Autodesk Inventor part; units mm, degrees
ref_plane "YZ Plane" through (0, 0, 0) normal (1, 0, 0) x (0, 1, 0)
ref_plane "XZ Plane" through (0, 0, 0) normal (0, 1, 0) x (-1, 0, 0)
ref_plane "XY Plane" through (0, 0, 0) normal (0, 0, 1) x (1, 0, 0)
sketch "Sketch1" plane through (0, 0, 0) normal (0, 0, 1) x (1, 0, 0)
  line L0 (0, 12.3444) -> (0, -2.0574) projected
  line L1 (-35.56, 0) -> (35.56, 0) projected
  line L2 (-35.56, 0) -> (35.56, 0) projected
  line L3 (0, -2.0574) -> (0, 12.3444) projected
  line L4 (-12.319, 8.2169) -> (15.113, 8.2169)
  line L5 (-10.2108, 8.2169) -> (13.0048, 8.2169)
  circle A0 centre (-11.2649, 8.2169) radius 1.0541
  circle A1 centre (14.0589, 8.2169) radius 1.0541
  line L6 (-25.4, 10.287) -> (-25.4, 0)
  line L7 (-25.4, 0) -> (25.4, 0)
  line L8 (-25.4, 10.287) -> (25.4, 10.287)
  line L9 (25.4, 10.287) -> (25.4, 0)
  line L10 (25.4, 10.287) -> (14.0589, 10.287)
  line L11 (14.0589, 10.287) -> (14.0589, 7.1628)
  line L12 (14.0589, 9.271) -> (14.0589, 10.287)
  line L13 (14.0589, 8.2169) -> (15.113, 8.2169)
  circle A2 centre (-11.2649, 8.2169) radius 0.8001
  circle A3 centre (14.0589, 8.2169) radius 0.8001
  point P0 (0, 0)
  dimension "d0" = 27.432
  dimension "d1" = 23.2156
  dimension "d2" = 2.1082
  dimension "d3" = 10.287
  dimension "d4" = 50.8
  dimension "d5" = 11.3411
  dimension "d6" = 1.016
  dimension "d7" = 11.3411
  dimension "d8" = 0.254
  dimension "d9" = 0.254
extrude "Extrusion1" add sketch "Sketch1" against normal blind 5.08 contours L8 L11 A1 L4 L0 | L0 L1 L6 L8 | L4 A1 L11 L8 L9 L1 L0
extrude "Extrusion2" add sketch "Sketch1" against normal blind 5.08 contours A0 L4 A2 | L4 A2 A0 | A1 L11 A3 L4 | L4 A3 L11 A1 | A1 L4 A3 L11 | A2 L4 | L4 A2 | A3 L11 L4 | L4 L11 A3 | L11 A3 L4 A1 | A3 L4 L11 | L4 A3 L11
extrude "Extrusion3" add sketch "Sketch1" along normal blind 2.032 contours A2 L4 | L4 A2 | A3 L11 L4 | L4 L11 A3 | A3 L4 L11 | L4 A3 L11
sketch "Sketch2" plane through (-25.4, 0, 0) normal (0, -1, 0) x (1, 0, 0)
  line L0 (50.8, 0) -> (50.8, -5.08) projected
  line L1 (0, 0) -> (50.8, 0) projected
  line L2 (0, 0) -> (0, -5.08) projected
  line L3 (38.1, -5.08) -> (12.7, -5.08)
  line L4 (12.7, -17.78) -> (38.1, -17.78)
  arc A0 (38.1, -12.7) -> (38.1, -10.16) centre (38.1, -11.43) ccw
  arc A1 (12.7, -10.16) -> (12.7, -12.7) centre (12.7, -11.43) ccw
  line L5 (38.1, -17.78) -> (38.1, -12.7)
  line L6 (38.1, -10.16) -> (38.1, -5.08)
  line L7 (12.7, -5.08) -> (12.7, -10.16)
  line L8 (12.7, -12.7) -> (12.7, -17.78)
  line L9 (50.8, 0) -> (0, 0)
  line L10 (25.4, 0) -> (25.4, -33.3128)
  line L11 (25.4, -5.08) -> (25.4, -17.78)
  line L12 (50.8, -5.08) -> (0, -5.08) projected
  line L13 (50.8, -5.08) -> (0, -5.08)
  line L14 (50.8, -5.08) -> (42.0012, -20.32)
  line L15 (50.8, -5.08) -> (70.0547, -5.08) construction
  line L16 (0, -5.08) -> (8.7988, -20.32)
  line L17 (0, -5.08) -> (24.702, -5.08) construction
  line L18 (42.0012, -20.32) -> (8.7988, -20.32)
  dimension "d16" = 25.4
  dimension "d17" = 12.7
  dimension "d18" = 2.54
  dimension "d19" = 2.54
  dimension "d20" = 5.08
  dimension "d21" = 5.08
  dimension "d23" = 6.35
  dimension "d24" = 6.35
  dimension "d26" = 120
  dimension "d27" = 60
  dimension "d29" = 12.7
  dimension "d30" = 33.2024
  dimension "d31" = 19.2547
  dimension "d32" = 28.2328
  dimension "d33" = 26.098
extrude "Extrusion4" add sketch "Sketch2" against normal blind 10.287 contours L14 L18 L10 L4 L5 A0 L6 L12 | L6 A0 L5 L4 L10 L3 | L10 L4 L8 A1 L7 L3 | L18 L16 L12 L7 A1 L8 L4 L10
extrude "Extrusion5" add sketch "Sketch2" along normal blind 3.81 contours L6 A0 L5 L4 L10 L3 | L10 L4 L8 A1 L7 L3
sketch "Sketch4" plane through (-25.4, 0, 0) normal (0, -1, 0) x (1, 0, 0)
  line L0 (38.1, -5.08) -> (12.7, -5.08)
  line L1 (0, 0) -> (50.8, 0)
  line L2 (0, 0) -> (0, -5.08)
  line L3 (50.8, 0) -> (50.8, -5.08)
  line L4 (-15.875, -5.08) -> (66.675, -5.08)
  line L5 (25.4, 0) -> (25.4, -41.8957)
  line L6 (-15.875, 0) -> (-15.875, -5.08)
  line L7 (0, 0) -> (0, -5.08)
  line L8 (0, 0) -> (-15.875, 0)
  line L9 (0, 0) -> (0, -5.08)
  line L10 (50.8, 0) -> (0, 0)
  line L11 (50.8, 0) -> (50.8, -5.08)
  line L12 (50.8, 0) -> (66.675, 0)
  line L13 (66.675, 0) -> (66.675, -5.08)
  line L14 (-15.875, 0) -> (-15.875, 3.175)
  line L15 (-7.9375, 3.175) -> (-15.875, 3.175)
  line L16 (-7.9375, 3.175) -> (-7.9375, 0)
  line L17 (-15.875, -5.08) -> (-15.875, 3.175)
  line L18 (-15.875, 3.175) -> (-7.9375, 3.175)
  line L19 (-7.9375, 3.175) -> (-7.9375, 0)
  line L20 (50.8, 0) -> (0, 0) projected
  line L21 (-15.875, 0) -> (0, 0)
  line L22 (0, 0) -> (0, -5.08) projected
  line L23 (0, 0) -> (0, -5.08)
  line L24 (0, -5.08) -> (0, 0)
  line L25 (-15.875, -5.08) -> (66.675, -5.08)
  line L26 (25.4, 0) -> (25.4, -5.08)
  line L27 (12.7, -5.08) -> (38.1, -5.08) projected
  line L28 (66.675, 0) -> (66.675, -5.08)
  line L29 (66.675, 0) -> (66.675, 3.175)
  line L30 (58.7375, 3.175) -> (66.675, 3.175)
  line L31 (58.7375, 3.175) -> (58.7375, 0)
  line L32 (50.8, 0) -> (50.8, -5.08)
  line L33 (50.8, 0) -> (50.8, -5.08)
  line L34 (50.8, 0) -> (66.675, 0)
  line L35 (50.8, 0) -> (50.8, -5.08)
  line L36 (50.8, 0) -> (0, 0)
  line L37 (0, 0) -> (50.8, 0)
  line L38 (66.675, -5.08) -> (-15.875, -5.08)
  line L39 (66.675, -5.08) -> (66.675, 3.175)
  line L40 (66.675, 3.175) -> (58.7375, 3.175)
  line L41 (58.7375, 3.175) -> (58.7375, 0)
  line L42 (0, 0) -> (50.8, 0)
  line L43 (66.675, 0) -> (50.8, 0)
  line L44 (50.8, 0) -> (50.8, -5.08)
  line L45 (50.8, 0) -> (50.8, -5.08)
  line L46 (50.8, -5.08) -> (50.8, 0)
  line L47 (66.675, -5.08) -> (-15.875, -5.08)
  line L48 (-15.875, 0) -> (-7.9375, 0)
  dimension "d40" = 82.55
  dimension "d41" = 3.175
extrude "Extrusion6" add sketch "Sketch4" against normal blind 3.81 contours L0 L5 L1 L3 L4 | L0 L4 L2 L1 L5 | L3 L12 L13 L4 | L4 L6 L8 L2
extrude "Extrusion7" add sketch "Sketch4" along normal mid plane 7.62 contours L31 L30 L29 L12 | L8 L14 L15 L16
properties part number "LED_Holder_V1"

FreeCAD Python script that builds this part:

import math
import FreeCAD as App
import Part
import Sketcher
Q = App.Units.Quantity

doc = App.newDocument("Part")
body = doc.addObject("PartDesign::Body", "Body")

sketch1 = doc.addObject("Sketcher::SketchObject", "Sketch")
body.addObject(sketch1)
sketch1.AttachmentSupport = (doc.XY_Plane, [""])
sketch1.MapMode = "FlatFace"
sketch1.addGeometry([
    Part.LineSegment(App.Vector(-25.4, 10.3, 0), App.Vector(-25.4, 0, 0)),
    Part.LineSegment(App.Vector(-25.4, 0, 0), App.Vector(25.4, 0, 0)),
    Part.LineSegment(App.Vector(25.4, 0, 0), App.Vector(25.4, 10.3, 0)),
    Part.LineSegment(App.Vector(25.4, 10.3, 0), App.Vector(-25.4, 10.3, 0)),
    Part.Circle(App.Vector(14.1, 8.2, 0), App.Vector(0, 0, 1), 1.1),
    Part.Circle(App.Vector(-11.3, 8.2, 0), App.Vector(0, 0, 1), 1.1),
], False)
sketch1.addConstraint([
    Sketcher.Constraint("Coincident", 0, 2, 1, 1),
    Sketcher.Constraint("Coincident", 1, 2, 2, 1),
    Sketcher.Constraint("Coincident", 2, 2, 3, 1),
    Sketcher.Constraint("Coincident", 3, 2, 0, 1),
    Sketcher.Constraint("Vertical", 0),
    Sketcher.Constraint("Horizontal", 1),
    Sketcher.Constraint("Vertical", 2),
    Sketcher.Constraint("Horizontal", 3),
    Sketcher.Constraint("Equal", 4, 5),
    Sketcher.Constraint("Symmetric", 0, 2, 1, 2, -1, 1),
    Sketcher.Constraint("Horizontal", 4, 3, 5, 3),
    Sketcher.Constraint("DistanceX", 1, 1, 1, 2, Q("2 in")),
    Sketcher.Constraint("Diameter", 4, Q("0.083 in")),
    Sketcher.Constraint("DistanceY", 0, 2, 0, 1, Q("0.405 in")),
    Sketcher.Constraint("DistanceX", 4, 3, 1, 2, Q("0.4465 in")),
    Sketcher.Constraint("DistanceX", 5, 3, 4, 3, Q("0.997 in")),
    Sketcher.Constraint("DistanceY", -1, 1, 4, 3, Q("0.3235 in")),
])
pad1 = doc.addObject("PartDesign::Pad", "Pad")
body.addObject(pad1)
pad1.Profile = sketch1
pad1.Length = Q("0.2 in")
pad1.Reversed = True

sketch2 = doc.addObject("Sketcher::SketchObject", "Sketch001")
body.addObject(sketch2)
sketch2.AttachmentSupport = (doc.XY_Plane, [""])
sketch2.MapMode = "FlatFace"
sketch2.addGeometry([
    Part.Circle(App.Vector(-11.3, 8.2, 0), App.Vector(0, 0, 1), 1.1),
    Part.Circle(App.Vector(14.1, 8.2, 0), App.Vector(0, 0, 1), 1.1),
], False)
sketch2.addConstraint([
    Sketcher.Constraint("Equal", 0, 1),
    Sketcher.Constraint("Horizontal", 0, 3, 1, 3),
    Sketcher.Constraint("Diameter", 0, Q("0.083 in")),
    Sketcher.Constraint("DistanceX", 0, 3, 1, 3, Q("0.997 in")),
    Sketcher.Constraint("DistanceX", 0, 3, -1, 1, Q("0.4435 in")),
    Sketcher.Constraint("DistanceY", -1, 1, 0, 3, Q("0.3235 in")),
])
pad2 = doc.addObject("PartDesign::Pad", "Pad001")
body.addObject(pad2)
pad2.Profile = sketch2
pad2.Length = Q("0.2 in")
pad2.Reversed = True

sketch3 = doc.addObject("Sketcher::SketchObject", "Sketch002")
body.addObject(sketch3)
sketch3.AttachmentSupport = (doc.XY_Plane, [""])
sketch3.MapMode = "FlatFace"
sketch3.addGeometry([
    Part.Circle(App.Vector(-11.3, 8.2, 0), App.Vector(0, 0, 1), 0.8),
    Part.Circle(App.Vector(14.1, 8.2, 0), App.Vector(0, 0, 1), 0.8),
], False)
sketch3.addConstraint([
    Sketcher.Constraint("Equal", 0, 1),
    Sketcher.Constraint("Horizontal", 0, 3, 1, 3),
    Sketcher.Constraint("Diameter", 0, Q("0.063 in")),
    Sketcher.Constraint("DistanceX", 0, 3, 1, 3, Q("0.997 in")),
    Sketcher.Constraint("DistanceX", 0, 3, -1, 1, Q("0.4435 in")),
    Sketcher.Constraint("DistanceY", -1, 1, 0, 3, Q("0.3235 in")),
])
pad3 = doc.addObject("PartDesign::Pad", "Pad002")
body.addObject(pad3)
pad3.Profile = sketch3
pad3.Length = Q("0.08 in")

sketch4 = doc.addObject("Sketcher::SketchObject", "Sketch003")
body.addObject(sketch4)
sketch4.AttachmentSupport = (doc.XZ_Plane, [""])
sketch4.MapMode = "FlatFace"
sketch4.addGeometry([
    Part.LineSegment(App.Vector(17, -20, 0), App.Vector(25, -5, 0)),
    Part.LineSegment(App.Vector(25, -5, 0), App.Vector(-25, -5, 0)),
    Part.LineSegment(App.Vector(-25, -5, 0), App.Vector(-17, -20, 0)),
    Part.LineSegment(App.Vector(-17, -20, 0), App.Vector(17, -20, 0)),
], False)
sketch4.addConstraint([
    Sketcher.Constraint("Coincident", 0, 2, 1, 1),
    Sketcher.Constraint("Coincident", 1, 2, 2, 1),
    Sketcher.Constraint("Coincident", 2, 2, 3, 1),
    Sketcher.Constraint("Coincident", 3, 2, 0, 1),
    Sketcher.Constraint("Horizontal", 1),
    Sketcher.Constraint("Horizontal", 3),
    Sketcher.Constraint("Equal", 0, 2),
    Sketcher.Constraint("DistanceX", -1, 1, 0, 2, Q("1 in")),
    Sketcher.Constraint("DistanceX", 1, 2, -1, 1, Q("1 in")),
    Sketcher.Constraint("Angle", 0, Q("60 deg")),
    Sketcher.Constraint("DistanceY", 0, 2, -1, 1, Q("0.2 in")),
    Sketcher.Constraint("DistanceX", 3, 1, 3, 2, 33.2024),
])
pad4 = doc.addObject("PartDesign::Pad", "Pad003")
body.addObject(pad4)
pad4.Profile = sketch4
pad4.Length = Q("0.405 in")
pad4.Reversed = True

sketch5 = doc.addObject("Sketcher::SketchObject", "Sketch004")
body.addObject(sketch5)
sketch5.AttachmentSupport = (doc.XZ_Plane, [""])
sketch5.MapMode = "FlatFace"
sketch5.addGeometry([
    Part.LineSegment(App.Vector(12.7, -10.2, 0), App.Vector(12.7, -5.1, 0)),
    Part.LineSegment(App.Vector(12.7, -5.1, 0), App.Vector(-12.7, -5.1, 0)),
    Part.LineSegment(App.Vector(-12.7, -5.1, 0), App.Vector(-12.7, -10.2, 0)),
    Part.ArcOfCircle(Part.Circle(App.Vector(-12.7, -11.4, 0), App.Vector(0, 0, 1), 1.3), math.radians(90), math.radians(270)),
    Part.LineSegment(App.Vector(-12.7, -12.7, 0), App.Vector(-12.7, -17.8, 0)),
    Part.LineSegment(App.Vector(-12.7, -17.8, 0), App.Vector(12.7, -17.8, 0)),
    Part.LineSegment(App.Vector(12.7, -17.8, 0), App.Vector(12.7, -12.7, 0)),
    Part.ArcOfCircle(Part.Circle(App.Vector(12.7, -11.4, 0), App.Vector(0, 0, 1), 1.3), math.radians(-90), math.radians(90)),
], False)
sketch5.addConstraint([
    Sketcher.Constraint("Coincident", 0, 2, 1, 1),
    Sketcher.Constraint("Coincident", 1, 2, 2, 1),
    Sketcher.Constraint("Coincident", 2, 2, 3, 1),
    Sketcher.Constraint("Coincident", 3, 2, 4, 1),
    Sketcher.Constraint("Coincident", 4, 2, 5, 1),
    Sketcher.Constraint("Coincident", 5, 2, 6, 1),
    Sketcher.Constraint("Coincident", 6, 2, 7, 1),
    Sketcher.Constraint("Coincident", 7, 2, 0, 1),
    Sketcher.Constraint("Vertical", 0),
    Sketcher.Constraint("Horizontal", 1),
    Sketcher.Constraint("Vertical", 2),
    Sketcher.Constraint("Vertical", 4),
    Sketcher.Constraint("Horizontal", 5),
    Sketcher.Constraint("Vertical", 6),
    Sketcher.Constraint("Equal", 3, 7),
    Sketcher.Constraint("Symmetric", 3, 3, 7, 3, -2),
    Sketcher.Constraint("Vertical", 7, 3, 0, 2),
    Sketcher.Constraint("Vertical", 3, 3, 1, 2),
    Sketcher.Constraint("Vertical", 2, 2, 3, 2),
    Sketcher.Constraint("Vertical", 0, 2, 5, 2),
    Sketcher.Constraint("Equal", 2, 4),
    Sketcher.Constraint("DistanceX", 1, 2, 1, 1, Q("1 in")),
    Sketcher.Constraint("Radius", 3, Q("0.05 in")),
    Sketcher.Constraint("DistanceY", 0, 1, 0, 2, Q("0.2 in")),
    Sketcher.Constraint("DistanceY", 0, 2, -1, 1, Q("0.2 in")),
])
pad5 = doc.addObject("PartDesign::Pad", "Pad004")
body.addObject(pad5)
pad5.Profile = sketch5
pad5.Length = Q("0.15 in")

sketch6 = doc.addObject("Sketcher::SketchObject", "Sketch005")
body.addObject(sketch6)
sketch6.AttachmentSupport = (doc.XZ_Plane, [""])
sketch6.MapMode = "FlatFace"
sketch6.addGeometry([
    Part.LineSegment(App.Vector(41, -5, 0), App.Vector(41, 0, 0)),
    Part.LineSegment(App.Vector(41, 0, 0), App.Vector(-41, 0, 0)),
    Part.LineSegment(App.Vector(-41, 0, 0), App.Vector(-41, -5, 0)),
    Part.LineSegment(App.Vector(-41, -5, 0), App.Vector(41, -5, 0)),
], False)
sketch6.addConstraint([
    Sketcher.Constraint("Coincident", 0, 2, 1, 1),
    Sketcher.Constraint("Coincident", 1, 2, 2, 1),
    Sketcher.Constraint("Coincident", 2, 2, 3, 1),
    Sketcher.Constraint("Coincident", 3, 2, 0, 1),
    Sketcher.Constraint("Vertical", 0),
    Sketcher.Constraint("Horizontal", 1),
    Sketcher.Constraint("Vertical", 2),
    Sketcher.Constraint("Horizontal", 3),
    Sketcher.Constraint("Symmetric", 0, 2, 1, 2, -1, 1),
    Sketcher.Constraint("DistanceX", 1, 2, 1, 1, Q("3.25 in")),
    Sketcher.Constraint("DistanceY", 0, 1, 0, 2, Q("0.2 in")),
])
pad6 = doc.addObject("PartDesign::Pad", "Pad005")
body.addObject(pad6)
pad6.Profile = sketch6
pad6.Length = Q("0.15 in")
pad6.Reversed = True

sketch7 = doc.addObject("Sketcher::SketchObject", "Sketch006")
body.addObject(sketch7)
sketch7.AttachmentSupport = (doc.XZ_Plane, [""])
sketch7.MapMode = "FlatFace"
sketch7.addGeometry([
    Part.LineSegment(App.Vector(33.3, 3.2, 0), App.Vector(33.3, 0, 0)),
    Part.LineSegment(App.Vector(33.3, 0, 0), App.Vector(41.3, 0, 0)),
    Part.LineSegment(App.Vector(41.3, 0, 0), App.Vector(41.3, 3.2, 0)),
    Part.LineSegment(App.Vector(41.3, 3.2, 0), App.Vector(33.3, 3.2, 0)),
    Part.LineSegment(App.Vector(-41.3, 0, 0), App.Vector(-33.3, 0, 0)),
    Part.LineSegment(App.Vector(-33.3, 0, 0), App.Vector(-33.3, 3.2, 0)),
    Part.LineSegment(App.Vector(-33.3, 3.2, 0), App.Vector(-41.3, 3.2, 0)),
    Part.LineSegment(App.Vector(-41.3, 3.2, 0), App.Vector(-41.3, 0, 0)),
], False)
sketch7.addConstraint([
    Sketcher.Constraint("Coincident", 0, 2, 1, 1),
    Sketcher.Constraint("Coincident", 1, 2, 2, 1),
    Sketcher.Constraint("Coincident", 2, 2, 3, 1),
    Sketcher.Constraint("Coincident", 3, 2, 0, 1),
    Sketcher.Constraint("Coincident", 4, 2, 5, 1),
    Sketcher.Constraint("Coincident", 5, 2, 6, 1),
    Sketcher.Constraint("Coincident", 6, 2, 7, 1),
    Sketcher.Constraint("Coincident", 7, 2, 4, 1),
    Sketcher.Constraint("Vertical", 0),
    Sketcher.Constraint("Horizontal", 1),
    Sketcher.Constraint("Vertical", 2),
    Sketcher.Constraint("Horizontal", 3),
    Sketcher.Constraint("Horizontal", 4),
    Sketcher.Constraint("Vertical", 5),
    Sketcher.Constraint("Horizontal", 6),
    Sketcher.Constraint("Vertical", 7),
    Sketcher.Constraint("Symmetric", 0, 2, 4, 2, -1, 1),
    Sketcher.Constraint("Symmetric", 2, 2, 6, 2, -2),
    Sketcher.Constraint("PointOnObject", 0, 2, -1),
    Sketcher.Constraint("DistanceY", 0, 2, 0, 1, Q("0.125 in")),
    Sketcher.Constraint("DistanceX", 6, 2, 2, 2, Q("3.25 in")),
    Sketcher.Constraint("DistanceX", 1, 1, 1, 2, Q("0.3125 in")),
])
pad7 = doc.addObject("PartDesign::Pad", "Pad006")
body.addObject(pad7)
pad7.Profile = sketch7
pad7.Length = Q("0.3 in")
pad7.Midplane = True

doc.recompute()
